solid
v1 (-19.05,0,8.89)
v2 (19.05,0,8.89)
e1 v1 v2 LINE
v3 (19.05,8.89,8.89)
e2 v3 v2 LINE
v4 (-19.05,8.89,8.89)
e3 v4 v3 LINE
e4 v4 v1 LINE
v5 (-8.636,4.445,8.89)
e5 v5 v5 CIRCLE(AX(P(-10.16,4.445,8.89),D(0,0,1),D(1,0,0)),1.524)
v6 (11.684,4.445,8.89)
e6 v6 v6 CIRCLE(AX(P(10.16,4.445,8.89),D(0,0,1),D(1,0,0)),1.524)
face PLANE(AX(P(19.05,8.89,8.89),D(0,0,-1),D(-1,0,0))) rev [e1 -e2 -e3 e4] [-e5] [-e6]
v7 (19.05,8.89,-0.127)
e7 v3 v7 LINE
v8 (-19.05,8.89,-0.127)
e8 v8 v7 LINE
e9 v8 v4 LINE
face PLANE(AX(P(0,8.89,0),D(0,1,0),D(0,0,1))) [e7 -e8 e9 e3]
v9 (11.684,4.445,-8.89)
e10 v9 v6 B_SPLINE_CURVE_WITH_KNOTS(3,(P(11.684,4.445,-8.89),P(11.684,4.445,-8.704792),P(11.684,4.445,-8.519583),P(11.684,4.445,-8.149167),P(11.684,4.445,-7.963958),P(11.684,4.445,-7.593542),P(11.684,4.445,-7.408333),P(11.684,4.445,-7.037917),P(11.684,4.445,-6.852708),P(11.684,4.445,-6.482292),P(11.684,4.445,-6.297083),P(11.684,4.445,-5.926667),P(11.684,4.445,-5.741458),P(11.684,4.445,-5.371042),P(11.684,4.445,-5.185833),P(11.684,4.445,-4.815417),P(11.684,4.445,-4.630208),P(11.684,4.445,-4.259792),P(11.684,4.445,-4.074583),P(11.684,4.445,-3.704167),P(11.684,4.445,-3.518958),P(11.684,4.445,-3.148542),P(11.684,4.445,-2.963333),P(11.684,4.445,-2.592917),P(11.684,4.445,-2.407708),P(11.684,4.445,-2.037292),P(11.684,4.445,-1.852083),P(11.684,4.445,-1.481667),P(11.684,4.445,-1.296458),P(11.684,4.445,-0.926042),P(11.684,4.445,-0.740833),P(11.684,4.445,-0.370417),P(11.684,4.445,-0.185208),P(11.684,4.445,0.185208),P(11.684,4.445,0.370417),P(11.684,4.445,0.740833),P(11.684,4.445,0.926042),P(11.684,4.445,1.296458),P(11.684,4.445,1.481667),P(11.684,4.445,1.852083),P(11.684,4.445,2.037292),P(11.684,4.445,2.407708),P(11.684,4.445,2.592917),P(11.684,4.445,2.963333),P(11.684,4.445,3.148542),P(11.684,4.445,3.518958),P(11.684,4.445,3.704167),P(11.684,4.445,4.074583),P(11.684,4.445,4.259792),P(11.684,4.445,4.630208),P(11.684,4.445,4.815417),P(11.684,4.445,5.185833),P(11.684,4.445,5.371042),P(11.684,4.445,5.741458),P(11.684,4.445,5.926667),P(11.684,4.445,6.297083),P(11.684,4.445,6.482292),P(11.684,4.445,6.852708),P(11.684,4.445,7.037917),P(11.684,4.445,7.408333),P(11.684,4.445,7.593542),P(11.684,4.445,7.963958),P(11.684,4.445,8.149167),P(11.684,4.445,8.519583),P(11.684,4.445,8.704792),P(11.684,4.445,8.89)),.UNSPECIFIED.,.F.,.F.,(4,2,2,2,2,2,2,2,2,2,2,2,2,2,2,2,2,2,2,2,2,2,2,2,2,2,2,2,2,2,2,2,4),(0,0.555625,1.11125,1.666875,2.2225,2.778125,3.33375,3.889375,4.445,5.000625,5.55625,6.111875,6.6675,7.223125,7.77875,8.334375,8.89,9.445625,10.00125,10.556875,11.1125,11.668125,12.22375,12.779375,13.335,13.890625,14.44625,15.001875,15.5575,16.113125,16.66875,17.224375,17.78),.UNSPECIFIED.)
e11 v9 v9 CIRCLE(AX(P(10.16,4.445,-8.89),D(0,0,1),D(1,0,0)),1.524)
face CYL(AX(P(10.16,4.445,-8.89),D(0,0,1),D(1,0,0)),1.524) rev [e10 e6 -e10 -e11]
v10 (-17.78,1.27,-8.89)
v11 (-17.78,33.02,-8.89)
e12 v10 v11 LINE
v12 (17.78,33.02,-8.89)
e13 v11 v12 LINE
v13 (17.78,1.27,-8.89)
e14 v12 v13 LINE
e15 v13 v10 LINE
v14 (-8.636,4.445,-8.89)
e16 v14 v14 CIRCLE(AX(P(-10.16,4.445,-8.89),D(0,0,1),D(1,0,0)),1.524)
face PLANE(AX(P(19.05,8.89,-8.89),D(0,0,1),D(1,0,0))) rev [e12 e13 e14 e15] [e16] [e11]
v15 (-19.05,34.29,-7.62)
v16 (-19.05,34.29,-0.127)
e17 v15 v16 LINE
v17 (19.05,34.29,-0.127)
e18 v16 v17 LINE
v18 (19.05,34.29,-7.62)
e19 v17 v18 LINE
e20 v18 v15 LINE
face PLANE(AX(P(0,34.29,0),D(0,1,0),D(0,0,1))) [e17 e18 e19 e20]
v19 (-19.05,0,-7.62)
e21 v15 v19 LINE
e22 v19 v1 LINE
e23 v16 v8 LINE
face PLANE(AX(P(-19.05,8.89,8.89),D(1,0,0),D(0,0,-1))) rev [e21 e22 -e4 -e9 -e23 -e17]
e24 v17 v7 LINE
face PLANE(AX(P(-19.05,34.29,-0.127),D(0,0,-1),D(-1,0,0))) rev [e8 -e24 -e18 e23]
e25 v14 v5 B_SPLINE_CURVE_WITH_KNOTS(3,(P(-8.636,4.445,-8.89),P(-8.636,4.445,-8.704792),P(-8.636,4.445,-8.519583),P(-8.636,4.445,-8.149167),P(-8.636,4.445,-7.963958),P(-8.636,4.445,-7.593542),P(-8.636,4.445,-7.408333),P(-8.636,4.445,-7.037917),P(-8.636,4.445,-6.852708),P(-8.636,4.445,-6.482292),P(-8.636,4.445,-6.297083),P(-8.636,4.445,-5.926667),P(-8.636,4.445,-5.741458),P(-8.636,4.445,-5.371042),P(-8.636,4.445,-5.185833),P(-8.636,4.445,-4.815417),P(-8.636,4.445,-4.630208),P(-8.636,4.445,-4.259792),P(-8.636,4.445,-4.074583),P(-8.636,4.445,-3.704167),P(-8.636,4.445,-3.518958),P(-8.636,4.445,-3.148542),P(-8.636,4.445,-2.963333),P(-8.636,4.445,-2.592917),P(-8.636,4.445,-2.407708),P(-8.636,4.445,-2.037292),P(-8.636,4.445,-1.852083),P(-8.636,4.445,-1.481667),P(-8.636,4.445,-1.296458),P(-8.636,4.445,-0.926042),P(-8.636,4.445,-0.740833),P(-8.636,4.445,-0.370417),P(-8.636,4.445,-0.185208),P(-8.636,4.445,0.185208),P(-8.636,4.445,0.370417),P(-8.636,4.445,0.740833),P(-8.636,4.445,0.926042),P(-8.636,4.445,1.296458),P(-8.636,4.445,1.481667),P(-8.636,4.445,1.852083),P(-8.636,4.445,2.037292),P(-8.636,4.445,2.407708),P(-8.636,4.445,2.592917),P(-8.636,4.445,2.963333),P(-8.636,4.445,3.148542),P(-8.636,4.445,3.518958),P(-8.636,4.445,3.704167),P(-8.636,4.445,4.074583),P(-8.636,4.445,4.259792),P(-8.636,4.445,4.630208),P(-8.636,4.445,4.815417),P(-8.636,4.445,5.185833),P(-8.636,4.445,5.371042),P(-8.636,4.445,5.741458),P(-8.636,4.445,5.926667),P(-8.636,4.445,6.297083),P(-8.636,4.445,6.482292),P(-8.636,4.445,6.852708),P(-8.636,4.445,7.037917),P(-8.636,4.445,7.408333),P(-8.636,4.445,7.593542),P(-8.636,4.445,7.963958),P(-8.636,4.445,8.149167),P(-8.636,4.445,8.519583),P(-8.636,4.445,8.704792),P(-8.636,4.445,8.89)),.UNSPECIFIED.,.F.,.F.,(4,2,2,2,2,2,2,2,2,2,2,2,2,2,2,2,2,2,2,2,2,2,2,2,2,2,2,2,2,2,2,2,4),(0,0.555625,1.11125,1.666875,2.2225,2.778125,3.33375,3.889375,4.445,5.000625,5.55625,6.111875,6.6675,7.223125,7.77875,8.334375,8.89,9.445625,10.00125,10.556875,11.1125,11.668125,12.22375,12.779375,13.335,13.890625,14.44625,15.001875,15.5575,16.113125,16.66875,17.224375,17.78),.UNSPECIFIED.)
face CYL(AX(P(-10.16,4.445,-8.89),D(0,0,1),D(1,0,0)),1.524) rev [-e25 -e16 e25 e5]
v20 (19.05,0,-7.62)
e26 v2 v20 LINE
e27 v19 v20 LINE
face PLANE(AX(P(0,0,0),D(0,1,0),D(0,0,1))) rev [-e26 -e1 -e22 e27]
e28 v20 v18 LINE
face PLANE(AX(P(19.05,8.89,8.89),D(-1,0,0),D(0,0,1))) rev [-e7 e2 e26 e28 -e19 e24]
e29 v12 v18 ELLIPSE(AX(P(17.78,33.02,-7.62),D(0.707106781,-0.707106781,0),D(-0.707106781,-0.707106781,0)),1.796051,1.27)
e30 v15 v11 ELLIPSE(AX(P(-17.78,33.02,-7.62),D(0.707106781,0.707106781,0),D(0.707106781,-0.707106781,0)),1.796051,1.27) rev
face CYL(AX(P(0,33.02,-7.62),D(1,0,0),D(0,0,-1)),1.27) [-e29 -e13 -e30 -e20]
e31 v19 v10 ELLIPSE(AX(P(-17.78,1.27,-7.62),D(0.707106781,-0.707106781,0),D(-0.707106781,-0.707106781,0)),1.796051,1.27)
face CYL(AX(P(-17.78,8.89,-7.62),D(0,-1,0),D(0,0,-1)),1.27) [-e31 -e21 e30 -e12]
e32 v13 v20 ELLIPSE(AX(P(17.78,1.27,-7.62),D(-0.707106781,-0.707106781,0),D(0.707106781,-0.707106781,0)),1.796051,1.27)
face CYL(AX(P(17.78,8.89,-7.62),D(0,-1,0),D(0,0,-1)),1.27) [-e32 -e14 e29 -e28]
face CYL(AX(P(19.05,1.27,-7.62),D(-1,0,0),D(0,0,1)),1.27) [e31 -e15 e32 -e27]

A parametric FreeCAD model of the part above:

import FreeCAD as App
import Part
import Sketcher

V = App.Vector
Q = App.Units.Quantity


def edges_at(feature, points):
    """Names of the edges that pass closest to the given points."""
    edges = feature.Shape.Edges
    near = lambda p: min(range(len(edges)), key=lambda i: edges[i].distToShape(Part.Vertex(*p))[0])
    return sorted({f"Edge{near(p) + 1}" for p in points})


def add_polygon(sketch, points):
    """Adds a closed chain of lines whose ends are joined by coincident constraints."""
    first, n = sketch.GeometryCount, len(points)
    for a, b in zip(points, points[1:] + points[:1]):
        sketch.addGeometry(Part.LineSegment(App.Vector(*a, 0), App.Vector(*b, 0)), False)
    for i in range(n):
        sketch.addConstraint(Sketcher.Constraint("Coincident", first + i, 2, first + (i + 1) % n, 1))

doc = App.newDocument("Part")
body = doc.addObject("PartDesign::Body", "Body")

sketch1 = doc.addObject("Sketcher::SketchObject", "Sketch")
body.addObject(sketch1)
sketch1.AttachmentSupport = (doc.XZ_Plane, [""])
sketch1.MapMode = "FlatFace"
add_polygon(sketch1, [(-19, -9), (-19, 9), (19, 9), (19, -9)])
sketch1.addConstraint(Sketcher.Constraint("Vertical", 0))
sketch1.addConstraint(Sketcher.Constraint("Horizontal", 1))
sketch1.addConstraint(Sketcher.Constraint("Vertical", 2))
sketch1.addConstraint(Sketcher.Constraint("Horizontal", 3))
sketch1.addConstraint(Sketcher.Constraint("Symmetric", 0, 2, 2, 2, -1, 1))
sketch1.addConstraint(Sketcher.Constraint("DistanceX", 1, 1, 1, 2, Q("1.5 in")))
sketch1.addConstraint(Sketcher.Constraint("DistanceY", 0, 1, 0, 2, Q("0.7 in")))
pad1 = doc.addObject("PartDesign::Pad", "Pad")
body.addObject(pad1)
pad1.Profile = sketch1
pad1.Length = Q("0.35 in")
pad1.Reversed = True

sketch2 = doc.addObject("Sketcher::SketchObject", "Sketch001")
body.addObject(sketch2)
sketch2.AttachmentSupport = (doc.XZ_Plane, [""])
sketch2.MapMode = "FlatFace"
sketch2.AttachmentOffset = App.Placement(V(0, 0, -0.35 * 25.4), App.Rotation())
add_polygon(sketch2, [(-19, -9), (-19, 0), (19, 0), (19, -9)])
sketch2.addConstraint(Sketcher.Constraint("Vertical", 0))
sketch2.addConstraint(Sketcher.Constraint("Horizontal", 1))
sketch2.addConstraint(Sketcher.Constraint("Vertical", 2))
sketch2.addConstraint(Sketcher.Constraint("Horizontal", 3))
sketch2.addConstraint(Sketcher.Constraint("DistanceX", 1, 1, 1, 2, Q("1.5 in")))
sketch2.addConstraint(Sketcher.Constraint("DistanceY", 0, 1, 0, 2, Q("0.345 in")))
sketch2.addConstraint(Sketcher.Constraint("DistanceX", 0, 2, -1, 1, Q("0.75 in")))
sketch2.addConstraint(Sketcher.Constraint("DistanceY", 2, 2, -1, 1, Q("0.35 in")))
pad2 = doc.addObject("PartDesign::Pad", "Pad001")
body.addObject(pad2)
pad2.Profile = sketch2
pad2.Length = Q("1 in")
pad2.Reversed = True

sketch3 = doc.addObject("Sketcher::SketchObject", "Sketch002")
body.addObject(sketch3)
sketch3.AttachmentSupport = (doc.XY_Plane, [""])
sketch3.MapMode = "FlatFace"
sketch3.AttachmentOffset = App.Placement(V(0, 0, 0.35 * 25.4), App.Rotation())
sketch3.addGeometry(Part.Circle(V(-10.2, 4.4, 0), V(0, 0, 1), 1.5), False)
sketch3.addGeometry(Part.Circle(V(10.2, 4.4, 0), V(0, 0, 1), 1.5), False)
sketch3.addConstraint(Sketcher.Constraint("Equal", 0, 1))
sketch3.addConstraint(Sketcher.Constraint("Symmetric", 0, 3, 1, 3, -2))
sketch3.addConstraint(Sketcher.Constraint("Diameter", 0, Q("0.12 in")))
sketch3.addConstraint(Sketcher.Constraint("DistanceX", 0, 3, -1, 1, Q("0.4 in")))
sketch3.addConstraint(Sketcher.Constraint("DistanceY", -1, 1, 0, 3, Q("0.175 in")))
pocket1 = doc.addObject("PartDesign::Pocket", "Pocket")
body.addObject(pocket1)
pocket1.Profile = sketch3
pocket1.Type = "ThroughAll"
doc.recompute()

fillet = doc.addObject("PartDesign::Fillet", "Fillet")
body.addObject(fillet)
fillet.Base = (pocket1, edges_at(pocket1, [
    (0, 34.29, -8.89),
    (0, 0, -8.89),
    (-19.05, 17.145, -8.89),
    (19.05, 17.145, -8.89),
]))
fillet.Radius = Q("0.05 in")

doc.recompute()
